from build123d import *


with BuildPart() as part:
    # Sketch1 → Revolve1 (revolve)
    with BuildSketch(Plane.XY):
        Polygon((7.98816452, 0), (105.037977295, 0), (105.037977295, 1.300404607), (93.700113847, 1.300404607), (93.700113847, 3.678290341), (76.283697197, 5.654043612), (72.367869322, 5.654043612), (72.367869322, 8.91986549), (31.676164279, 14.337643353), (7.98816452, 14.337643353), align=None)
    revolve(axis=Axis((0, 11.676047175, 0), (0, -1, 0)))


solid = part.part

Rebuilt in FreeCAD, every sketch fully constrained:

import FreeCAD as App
import Part
import Sketcher
Q = App.Units.Quantity


def add_polygon(sketch, points):
    """Adds a closed chain of lines whose ends are joined by coincident constraints."""
    first, n = sketch.GeometryCount, len(points)
    for a, b in zip(points, points[1:] + points[:1]):
        sketch.addGeometry(Part.LineSegment(App.Vector(*a, 0), App.Vector(*b, 0)), False)
    for i in range(n):
        sketch.addConstraint(Sketcher.Constraint("Coincident", first + i, 2, first + (i + 1) % n, 1))

doc = App.newDocument("Part")
body = doc.addObject("PartDesign::Body", "Body")

# Sketch on XY plane
sketch1 = body.newObject("Sketcher::SketchObject", "Sketch")
sketch1.AttachmentSupport = (doc.getObject("XY_Plane"), [""])
sketch1.MapMode = "FlatFace"
add_polygon(sketch1, [(8, 0), (105, 0), (105, 1.3), (93.7, 1.3), (93.7, 3.7), (76.3, 5.7), (72.4, 5.7), (72.4, 8.9), (31.7, 14.3), (8, 14.3)])  # lines 0-9
sketch1.addConstraint([
    Sketcher.Constraint("Horizontal", 0),
    Sketcher.Constraint("Vertical", 1),
    Sketcher.Constraint("Horizontal", 2),
    Sketcher.Constraint("Vertical", 3),
    Sketcher.Constraint("Horizontal", 5),
    Sketcher.Constraint("Vertical", 6),
    Sketcher.Constraint("Horizontal", 8),
    Sketcher.Constraint("Vertical", 9),
    Sketcher.Constraint("PointOnObject", 0, 2, -1),
    Sketcher.Constraint("DistanceX", 8, 2, 8, 1, Q("23.688 mm")),
    Sketcher.Constraint("DistanceY", 6, 1, 6, 2, Q("3.265822 mm")),
    Sketcher.Constraint("DistanceY", 5, 2, 7, 2, Q("8.6836 mm")),
    Sketcher.Constraint("DistanceX", 0, 1, 0, 2, Q("97.049813 mm")),
    Sketcher.Constraint("DistanceX", 2, 2, 2, 1, Q("11.337863 mm")),
    Sketcher.Constraint("DistanceX", 5, 2, 5, 1, Q("3.915828 mm")),
    Sketcher.Constraint("DistanceY", 1, 1, 1, 2, Q("1.300405 mm")),
    Sketcher.Constraint("DistanceY", 3, 1, 3, 2, Q("2.377886 mm")),
    Sketcher.Constraint("DistanceY", 9, 2, 9, 1, Q("14.337643 mm")),
    Sketcher.Constraint("DistanceX", -1, 1, 5, 2, Q("72.367869 mm")),
    Sketcher.Constraint("DistanceX", 4, 2, 1, 2, Q("28.75428 mm")),
])
revolution = body.newObject("PartDesign::Revolution", "Revolution")
revolution.Profile = sketch1
revolution.ReferenceAxis = (sketch1, ["V_Axis"])
revolution.Angle = 360

doc.recompute()
